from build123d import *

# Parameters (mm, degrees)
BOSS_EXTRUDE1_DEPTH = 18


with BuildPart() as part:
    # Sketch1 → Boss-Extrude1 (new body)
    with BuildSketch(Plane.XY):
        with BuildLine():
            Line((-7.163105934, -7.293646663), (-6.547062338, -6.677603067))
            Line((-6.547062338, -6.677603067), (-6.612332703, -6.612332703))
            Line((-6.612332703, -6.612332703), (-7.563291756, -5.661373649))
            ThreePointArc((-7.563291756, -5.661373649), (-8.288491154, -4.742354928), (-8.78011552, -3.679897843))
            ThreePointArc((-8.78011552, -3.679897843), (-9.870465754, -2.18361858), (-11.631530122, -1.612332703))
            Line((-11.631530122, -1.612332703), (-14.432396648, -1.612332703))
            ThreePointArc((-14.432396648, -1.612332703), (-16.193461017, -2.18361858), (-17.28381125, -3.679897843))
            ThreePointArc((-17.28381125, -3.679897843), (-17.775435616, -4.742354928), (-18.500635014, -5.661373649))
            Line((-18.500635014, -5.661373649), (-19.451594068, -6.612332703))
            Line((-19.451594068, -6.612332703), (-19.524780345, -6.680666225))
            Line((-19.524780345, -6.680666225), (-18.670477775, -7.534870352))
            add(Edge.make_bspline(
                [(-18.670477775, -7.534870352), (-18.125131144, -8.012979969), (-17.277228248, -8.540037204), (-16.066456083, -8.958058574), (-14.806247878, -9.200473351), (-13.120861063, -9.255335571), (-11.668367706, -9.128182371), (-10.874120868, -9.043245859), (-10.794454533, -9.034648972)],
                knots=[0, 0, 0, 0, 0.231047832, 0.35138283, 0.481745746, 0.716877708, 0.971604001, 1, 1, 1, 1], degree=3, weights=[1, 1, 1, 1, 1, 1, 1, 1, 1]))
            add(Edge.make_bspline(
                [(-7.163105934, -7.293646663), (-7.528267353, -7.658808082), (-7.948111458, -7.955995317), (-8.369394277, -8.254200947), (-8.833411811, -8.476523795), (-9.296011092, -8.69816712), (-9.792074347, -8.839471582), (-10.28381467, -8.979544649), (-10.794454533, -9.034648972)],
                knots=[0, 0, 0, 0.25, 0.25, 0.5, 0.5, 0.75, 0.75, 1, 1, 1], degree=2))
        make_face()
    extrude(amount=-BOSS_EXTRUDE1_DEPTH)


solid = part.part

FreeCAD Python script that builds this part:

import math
import FreeCAD as App
import Part
import Sketcher
Q = App.Units.Quantity

doc = App.newDocument("Part")
body = doc.addObject("PartDesign::Body", "Body")

sketch1 = doc.addObject("Sketcher::SketchObject", "Sketch")
body.addObject(sketch1)
sketch1.AttachmentSupport = (doc.XY_Plane, [""])
sketch1.MapMode = "FlatFace"
sketch1.addGeometry([
    Part.LineSegment(App.Vector(-7.163106, -7.293647, 0), App.Vector(-6.547062, -6.677603, 0)),
    Part.LineSegment(App.Vector(-6.547062, -6.677603, 0), App.Vector(-6.612333, -6.612333, 0)),
    Part.LineSegment(App.Vector(-6.612333, -6.612333, 0), App.Vector(-7.563292, -5.661374, 0)),
    Part.ArcOfCircle(Part.Circle(App.Vector(-4.027758, -2.12584, 0), App.Vector(0, 0, 1), 5), math.radians(-161.891851), math.radians(-135)),
    Part.ArcOfCircle(Part.Circle(App.Vector(-11.63153, -4.612333, 0), App.Vector(0, 0, 1), 3), math.radians(18.108149), math.radians(90)),
    Part.LineSegment(App.Vector(-11.63153, -1.612333, 0), App.Vector(-14.432397, -1.612333, 0)),
    Part.ArcOfCircle(Part.Circle(App.Vector(-14.432397, -4.612333, 0), App.Vector(0, 0, 1), 3), math.radians(90), math.radians(161.891851)),
    Part.ArcOfCircle(Part.Circle(App.Vector(-22.036169, -2.12584, 0), App.Vector(0, 0, 1), 5), math.radians(-45), math.radians(-18.108149)),
    Part.LineSegment(App.Vector(-18.500635, -5.661374, 0), App.Vector(-19.451594, -6.612333, 0)),
    Part.LineSegment(App.Vector(-19.451594, -6.612333, 0), App.Vector(-19.52478, -6.680666, 0)),
    Part.LineSegment(App.Vector(-19.52478, -6.680666, 0), App.Vector(-18.670478, -7.53487, 0)),
    Part.BSplineCurve([App.Vector(-18.670478, -7.53487, 0), App.Vector(-18.125131, -8.01298, 0), App.Vector(-17.277228, -8.540037, 0), App.Vector(-16.066456, -8.958059, 0), App.Vector(-14.806248, -9.200473, 0), App.Vector(-13.120861, -9.255336, 0), App.Vector(-11.668368, -9.128182, 0), App.Vector(-10.874121, -9.043246, 0), App.Vector(-10.794455, -9.034649, 0)], [4, 1, 1, 1, 1, 1, 4], [0, 0.231047832, 0.35138283, 0.481745746, 0.716877708, 0.971604001, 1], False, 3, [1, 1, 1, 1, 1, 1, 1, 1, 1], False),
    Part.BSplineCurve([App.Vector(-7.163106, -7.293647, 0), App.Vector(-7.528267, -7.658808, 0), App.Vector(-7.948111, -7.955995, 0), App.Vector(-8.369394, -8.254201, 0), App.Vector(-8.833412, -8.476524, 0), App.Vector(-9.296011, -8.698167, 0), App.Vector(-9.792074, -8.839472, 0), App.Vector(-10.283815, -8.979545, 0), App.Vector(-10.794455, -9.034649, 0)], [3, 2, 2, 2, 3], [0, 0.25, 0.5, 0.75, 1], False, 2, [1, 1, 1, 1, 1, 1, 1, 1, 1], False),
], False)
sketch1.addConstraint([
    Sketcher.Constraint("Block", 11),
    Sketcher.Constraint("Block", 12),
    Sketcher.Constraint("Coincident", 0, 2, 1, 1),
    Sketcher.Constraint("Coincident", 1, 2, 2, 1),
    Sketcher.Constraint("Coincident", 2, 2, 3, 2),
    Sketcher.Constraint("Coincident", 3, 1, 4, 1),
    Sketcher.Constraint("Coincident", 4, 2, 5, 1),
    Sketcher.Constraint("Coincident", 5, 2, 6, 1),
    Sketcher.Constraint("Coincident", 6, 2, 7, 2),
    Sketcher.Constraint("Coincident", 7, 1, 8, 1),
    Sketcher.Constraint("Coincident", 8, 2, 9, 1),
    Sketcher.Constraint("Coincident", 9, 2, 10, 1),
    Sketcher.Constraint("Coincident", 10, 2, 11, 1),
    Sketcher.Constraint("Coincident", 12, 1, 0, 1),
    Sketcher.Constraint("Horizontal", 5),
    Sketcher.Constraint("Radius", 3, Q("5 mm")),
    Sketcher.Constraint("Radius", 4, Q("3 mm")),
    Sketcher.Constraint("Radius", 6, Q("3 mm")),
    Sketcher.Constraint("Radius", 7, Q("5 mm")),
    Sketcher.Constraint("DistanceY", 1, 2, 4, 3, Q("2 mm")),
    Sketcher.Constraint("DistanceY", 8, 2, 6, 3, Q("2 mm")),
    Sketcher.Constraint("Distance", 2, Q("1.344859 mm")),
    Sketcher.Constraint("Distance", 8, Q("1.344859 mm")),
    Sketcher.Constraint("Distance", 9, Q("0.100128 mm")),
    Sketcher.Constraint("DistanceX", 5, 2, 5, 1, Q("2.800867 mm")),
    Sketcher.Constraint("DistanceY", 3, 3, -1, 1, Q("2.12584 mm")),
    Sketcher.Constraint("DistanceX", 4, 3, -1, 1, Q("11.63153 mm")),
    Sketcher.Constraint("DistanceX", 7, 3, -1, 1, Q("22.036169 mm")),
    Sketcher.Constraint("DistanceY", 7, 3, -1, 1, Q("2.12584 mm")),
    Sketcher.Constraint("DistanceX", 2, 2, -1, 1, Q("7.563292 mm")),
    Sketcher.Constraint("DistanceX", 4, 2, -1, 1, Q("11.63153 mm")),
    Sketcher.Constraint("DistanceX", 6, 2, -1, 1, Q("17.283811 mm")),
    Sketcher.Constraint("DistanceX", 9, 2, -1, 1, Q("19.52478 mm")),
    Sketcher.Constraint("DistanceX", 7, 3, 3, 3, Q("18.008411 mm")),
    Sketcher.Constraint("DistanceY", 0, 2, 4, 3, Q("2.06527 mm")),
    Sketcher.Constraint("DistanceX", 1, 2, 0, 2, Q("0.06527 mm")),
    Sketcher.Constraint("DistanceY", 3, 1, 3, 3, Q("1.554058 mm")),
    Sketcher.Constraint("DistanceX", 7, 1, 6, 3, Q("4.068238 mm")),
])
pad1 = doc.addObject("PartDesign::Pad", "Pad")
body.addObject(pad1)
pad1.Profile = sketch1
pad1.Length = 18
pad1.Reversed = True

doc.recompute()
